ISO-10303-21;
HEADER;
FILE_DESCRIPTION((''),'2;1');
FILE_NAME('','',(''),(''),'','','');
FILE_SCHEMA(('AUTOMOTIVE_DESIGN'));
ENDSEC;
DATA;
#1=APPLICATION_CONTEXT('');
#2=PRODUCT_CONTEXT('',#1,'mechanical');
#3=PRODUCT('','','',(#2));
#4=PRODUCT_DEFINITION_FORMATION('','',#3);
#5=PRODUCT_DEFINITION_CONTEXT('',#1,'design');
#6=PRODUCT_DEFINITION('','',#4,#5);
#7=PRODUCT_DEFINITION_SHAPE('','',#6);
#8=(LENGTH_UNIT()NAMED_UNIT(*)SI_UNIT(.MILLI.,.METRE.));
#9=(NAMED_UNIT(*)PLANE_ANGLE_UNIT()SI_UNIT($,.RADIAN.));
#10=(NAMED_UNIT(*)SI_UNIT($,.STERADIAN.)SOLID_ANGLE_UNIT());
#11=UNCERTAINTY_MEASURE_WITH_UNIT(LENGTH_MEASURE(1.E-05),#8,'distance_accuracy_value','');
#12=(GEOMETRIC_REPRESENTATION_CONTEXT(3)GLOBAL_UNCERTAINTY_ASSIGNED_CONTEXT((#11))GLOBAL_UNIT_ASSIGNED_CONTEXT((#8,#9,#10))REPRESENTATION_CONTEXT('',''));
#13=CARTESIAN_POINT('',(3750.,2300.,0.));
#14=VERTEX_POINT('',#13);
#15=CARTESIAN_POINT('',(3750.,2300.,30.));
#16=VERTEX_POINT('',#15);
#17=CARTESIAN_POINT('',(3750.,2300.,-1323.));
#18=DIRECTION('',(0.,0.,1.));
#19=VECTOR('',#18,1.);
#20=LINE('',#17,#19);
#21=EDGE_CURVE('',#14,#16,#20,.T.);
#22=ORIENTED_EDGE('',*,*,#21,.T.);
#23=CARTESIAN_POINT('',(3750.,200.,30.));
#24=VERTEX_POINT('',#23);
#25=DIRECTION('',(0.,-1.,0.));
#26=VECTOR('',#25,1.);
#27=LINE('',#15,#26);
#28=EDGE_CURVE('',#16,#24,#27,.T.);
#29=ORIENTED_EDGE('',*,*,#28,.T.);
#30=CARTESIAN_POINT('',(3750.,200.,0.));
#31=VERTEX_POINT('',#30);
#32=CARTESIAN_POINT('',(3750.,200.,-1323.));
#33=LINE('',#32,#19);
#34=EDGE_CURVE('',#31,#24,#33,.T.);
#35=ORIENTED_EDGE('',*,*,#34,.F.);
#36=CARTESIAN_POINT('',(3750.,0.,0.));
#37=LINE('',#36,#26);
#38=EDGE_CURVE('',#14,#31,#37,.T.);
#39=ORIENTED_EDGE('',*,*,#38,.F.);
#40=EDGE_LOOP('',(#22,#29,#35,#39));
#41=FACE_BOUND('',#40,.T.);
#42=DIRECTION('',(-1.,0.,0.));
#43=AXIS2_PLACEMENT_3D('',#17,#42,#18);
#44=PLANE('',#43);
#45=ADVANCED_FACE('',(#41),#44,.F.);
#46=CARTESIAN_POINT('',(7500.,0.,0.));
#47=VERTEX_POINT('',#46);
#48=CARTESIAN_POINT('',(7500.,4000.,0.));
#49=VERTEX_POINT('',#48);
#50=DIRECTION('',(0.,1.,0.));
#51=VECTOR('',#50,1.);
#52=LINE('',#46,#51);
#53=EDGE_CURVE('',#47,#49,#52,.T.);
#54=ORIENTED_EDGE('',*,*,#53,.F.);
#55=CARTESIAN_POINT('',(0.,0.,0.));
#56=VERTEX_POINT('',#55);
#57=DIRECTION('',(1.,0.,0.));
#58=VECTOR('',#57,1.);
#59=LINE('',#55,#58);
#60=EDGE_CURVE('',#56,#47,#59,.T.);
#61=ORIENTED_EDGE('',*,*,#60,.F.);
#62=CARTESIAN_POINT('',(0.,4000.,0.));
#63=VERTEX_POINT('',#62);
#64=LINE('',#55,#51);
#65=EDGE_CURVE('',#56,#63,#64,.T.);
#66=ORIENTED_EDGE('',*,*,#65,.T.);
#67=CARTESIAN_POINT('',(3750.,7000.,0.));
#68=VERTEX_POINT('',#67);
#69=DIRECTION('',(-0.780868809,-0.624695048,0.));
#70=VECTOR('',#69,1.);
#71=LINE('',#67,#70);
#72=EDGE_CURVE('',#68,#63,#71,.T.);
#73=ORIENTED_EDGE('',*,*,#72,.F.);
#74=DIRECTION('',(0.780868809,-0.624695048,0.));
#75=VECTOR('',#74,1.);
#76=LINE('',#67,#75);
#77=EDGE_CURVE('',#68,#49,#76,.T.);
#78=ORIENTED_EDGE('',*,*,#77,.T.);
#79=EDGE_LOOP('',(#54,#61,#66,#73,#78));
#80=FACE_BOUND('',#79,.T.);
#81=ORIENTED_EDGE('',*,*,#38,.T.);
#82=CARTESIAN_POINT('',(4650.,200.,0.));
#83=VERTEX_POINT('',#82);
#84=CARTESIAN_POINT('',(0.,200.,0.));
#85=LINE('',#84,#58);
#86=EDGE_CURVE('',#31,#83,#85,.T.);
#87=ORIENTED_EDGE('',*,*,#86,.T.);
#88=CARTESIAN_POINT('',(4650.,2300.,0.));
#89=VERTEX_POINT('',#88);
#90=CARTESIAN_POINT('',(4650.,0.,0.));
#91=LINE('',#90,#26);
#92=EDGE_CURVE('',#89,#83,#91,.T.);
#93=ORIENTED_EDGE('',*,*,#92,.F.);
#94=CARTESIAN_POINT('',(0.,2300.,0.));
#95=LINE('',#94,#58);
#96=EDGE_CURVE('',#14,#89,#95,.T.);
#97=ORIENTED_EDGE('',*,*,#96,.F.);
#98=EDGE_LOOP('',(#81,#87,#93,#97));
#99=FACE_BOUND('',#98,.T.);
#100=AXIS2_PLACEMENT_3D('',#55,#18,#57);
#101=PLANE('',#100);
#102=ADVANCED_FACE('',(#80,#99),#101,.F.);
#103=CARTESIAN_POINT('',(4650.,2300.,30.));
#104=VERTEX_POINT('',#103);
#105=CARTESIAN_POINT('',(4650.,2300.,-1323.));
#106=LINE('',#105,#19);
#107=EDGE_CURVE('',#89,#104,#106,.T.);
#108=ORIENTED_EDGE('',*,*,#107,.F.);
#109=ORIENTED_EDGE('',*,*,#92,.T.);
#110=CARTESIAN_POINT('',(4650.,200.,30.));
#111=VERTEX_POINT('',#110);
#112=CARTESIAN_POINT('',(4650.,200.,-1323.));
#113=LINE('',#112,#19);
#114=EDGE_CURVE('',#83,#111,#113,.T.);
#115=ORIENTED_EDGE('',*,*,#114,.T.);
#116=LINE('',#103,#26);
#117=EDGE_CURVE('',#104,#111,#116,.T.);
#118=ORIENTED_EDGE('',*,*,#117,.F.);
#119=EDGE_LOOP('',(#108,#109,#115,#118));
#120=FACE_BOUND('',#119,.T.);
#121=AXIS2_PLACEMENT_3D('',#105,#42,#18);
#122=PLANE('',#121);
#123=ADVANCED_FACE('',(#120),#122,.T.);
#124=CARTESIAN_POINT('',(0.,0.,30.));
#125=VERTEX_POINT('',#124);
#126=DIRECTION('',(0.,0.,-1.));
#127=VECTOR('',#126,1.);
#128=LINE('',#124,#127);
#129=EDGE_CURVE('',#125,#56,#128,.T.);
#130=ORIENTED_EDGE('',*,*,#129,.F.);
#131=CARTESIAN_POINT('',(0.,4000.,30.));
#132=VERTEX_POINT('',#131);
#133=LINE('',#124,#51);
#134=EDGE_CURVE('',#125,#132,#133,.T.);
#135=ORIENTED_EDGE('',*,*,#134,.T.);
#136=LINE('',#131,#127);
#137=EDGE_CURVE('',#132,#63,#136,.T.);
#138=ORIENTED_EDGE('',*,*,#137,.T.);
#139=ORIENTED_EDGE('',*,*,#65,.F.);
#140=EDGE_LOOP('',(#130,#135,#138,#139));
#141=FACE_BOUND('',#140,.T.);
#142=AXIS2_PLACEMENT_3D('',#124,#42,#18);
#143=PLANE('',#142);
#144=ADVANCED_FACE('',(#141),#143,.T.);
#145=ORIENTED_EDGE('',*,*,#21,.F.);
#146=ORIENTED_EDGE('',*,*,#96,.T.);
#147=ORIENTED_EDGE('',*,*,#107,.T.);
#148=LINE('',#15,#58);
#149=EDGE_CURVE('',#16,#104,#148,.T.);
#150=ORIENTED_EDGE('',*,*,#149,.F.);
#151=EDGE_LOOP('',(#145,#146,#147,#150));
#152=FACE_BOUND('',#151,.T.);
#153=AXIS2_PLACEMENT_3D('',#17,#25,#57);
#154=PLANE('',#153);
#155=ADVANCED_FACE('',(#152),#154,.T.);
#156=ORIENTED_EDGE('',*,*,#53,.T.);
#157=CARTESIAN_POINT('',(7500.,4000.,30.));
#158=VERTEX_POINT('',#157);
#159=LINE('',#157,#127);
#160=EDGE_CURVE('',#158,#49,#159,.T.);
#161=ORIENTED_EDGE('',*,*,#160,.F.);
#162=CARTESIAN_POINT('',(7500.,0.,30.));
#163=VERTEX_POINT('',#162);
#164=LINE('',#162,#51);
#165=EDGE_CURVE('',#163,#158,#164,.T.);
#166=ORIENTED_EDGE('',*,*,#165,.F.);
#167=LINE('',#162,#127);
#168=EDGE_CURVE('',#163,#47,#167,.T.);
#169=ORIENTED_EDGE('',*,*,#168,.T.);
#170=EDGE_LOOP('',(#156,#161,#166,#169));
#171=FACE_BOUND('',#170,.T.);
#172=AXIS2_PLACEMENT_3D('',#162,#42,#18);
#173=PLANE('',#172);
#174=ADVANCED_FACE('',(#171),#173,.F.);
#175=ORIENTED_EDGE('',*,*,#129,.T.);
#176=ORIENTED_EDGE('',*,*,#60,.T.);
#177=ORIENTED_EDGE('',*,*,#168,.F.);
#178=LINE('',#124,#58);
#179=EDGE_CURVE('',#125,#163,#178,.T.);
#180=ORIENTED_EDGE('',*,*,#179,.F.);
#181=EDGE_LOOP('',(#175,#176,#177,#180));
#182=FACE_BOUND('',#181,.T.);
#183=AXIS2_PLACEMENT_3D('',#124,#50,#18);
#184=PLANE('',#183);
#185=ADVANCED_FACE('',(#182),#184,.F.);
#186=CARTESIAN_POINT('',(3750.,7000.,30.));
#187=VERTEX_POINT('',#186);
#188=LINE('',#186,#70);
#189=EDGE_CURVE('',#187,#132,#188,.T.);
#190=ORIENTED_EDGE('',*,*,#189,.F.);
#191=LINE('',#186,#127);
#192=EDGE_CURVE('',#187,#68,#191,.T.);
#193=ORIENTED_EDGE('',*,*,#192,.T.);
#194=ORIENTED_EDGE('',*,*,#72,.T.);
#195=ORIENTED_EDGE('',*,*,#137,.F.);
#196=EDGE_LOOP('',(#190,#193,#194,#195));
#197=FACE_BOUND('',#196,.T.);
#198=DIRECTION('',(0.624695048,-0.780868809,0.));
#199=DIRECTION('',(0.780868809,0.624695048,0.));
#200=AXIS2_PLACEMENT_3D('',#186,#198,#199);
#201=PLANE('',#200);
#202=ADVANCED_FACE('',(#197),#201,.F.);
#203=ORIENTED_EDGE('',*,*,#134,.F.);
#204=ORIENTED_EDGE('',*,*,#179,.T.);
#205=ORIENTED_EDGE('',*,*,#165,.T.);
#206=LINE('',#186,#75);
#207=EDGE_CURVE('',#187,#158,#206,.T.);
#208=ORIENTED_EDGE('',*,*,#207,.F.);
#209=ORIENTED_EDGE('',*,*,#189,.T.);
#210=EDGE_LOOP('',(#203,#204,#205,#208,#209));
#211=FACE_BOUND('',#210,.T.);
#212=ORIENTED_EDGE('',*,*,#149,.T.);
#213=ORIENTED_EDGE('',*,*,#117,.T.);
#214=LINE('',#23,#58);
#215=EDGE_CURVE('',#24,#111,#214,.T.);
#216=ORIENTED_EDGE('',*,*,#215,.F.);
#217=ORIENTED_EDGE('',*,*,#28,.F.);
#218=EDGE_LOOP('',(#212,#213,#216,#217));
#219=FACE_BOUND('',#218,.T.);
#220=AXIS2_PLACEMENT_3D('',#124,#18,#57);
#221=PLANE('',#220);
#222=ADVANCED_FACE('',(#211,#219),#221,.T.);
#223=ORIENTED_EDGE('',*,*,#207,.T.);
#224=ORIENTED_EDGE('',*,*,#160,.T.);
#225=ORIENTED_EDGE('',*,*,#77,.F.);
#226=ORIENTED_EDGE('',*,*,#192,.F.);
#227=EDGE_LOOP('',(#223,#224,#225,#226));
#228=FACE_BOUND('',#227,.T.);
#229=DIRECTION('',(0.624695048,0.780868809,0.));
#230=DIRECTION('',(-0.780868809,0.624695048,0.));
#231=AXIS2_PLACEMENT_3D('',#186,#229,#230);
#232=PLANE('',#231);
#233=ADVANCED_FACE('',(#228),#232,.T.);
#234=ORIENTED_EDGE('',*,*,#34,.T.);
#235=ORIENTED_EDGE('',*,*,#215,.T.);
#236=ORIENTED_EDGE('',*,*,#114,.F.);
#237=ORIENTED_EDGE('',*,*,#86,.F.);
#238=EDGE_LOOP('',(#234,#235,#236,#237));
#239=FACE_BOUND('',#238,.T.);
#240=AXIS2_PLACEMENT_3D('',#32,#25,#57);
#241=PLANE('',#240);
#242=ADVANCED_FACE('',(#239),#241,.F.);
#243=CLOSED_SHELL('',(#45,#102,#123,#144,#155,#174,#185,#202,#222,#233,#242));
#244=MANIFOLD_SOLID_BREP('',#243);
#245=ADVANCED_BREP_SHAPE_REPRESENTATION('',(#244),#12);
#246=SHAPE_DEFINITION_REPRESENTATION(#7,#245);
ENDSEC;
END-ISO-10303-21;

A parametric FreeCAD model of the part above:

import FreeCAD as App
import Part
import Sketcher

V = App.Vector
Q = App.Units.Quantity

doc = App.newDocument("Part")
body = doc.addObject("PartDesign::Body", "Body")

# Sketch on XY plane
sketch1 = body.newObject("Sketcher::SketchObject", "Sketch")
sketch1.AttachmentSupport = (doc.getObject("XY_Plane"), [""])
sketch1.MapMode = "FlatFace"
sketch1.addGeometry([
    Part.LineSegment(V(0, 0, 0), V(7500, 0, 0)),  # 0
    Part.LineSegment(V(7500, 0, 0), V(7500, 4000, 0)),  # 1
    Part.LineSegment(V(7500, 4000, 0), V(3750, 7000, 0)),  # 2
    Part.LineSegment(V(3750, 7000, 0), V(0, 4000, 0)),  # 3
    Part.LineSegment(V(0, 4000, 0), V(0, 0, 0)),  # 4
], False)
sketch1.addConstraint([
    Sketcher.Constraint("Coincident", 0, 2, 1, 1),
    Sketcher.Constraint("Coincident", 1, 2, 2, 1),
    Sketcher.Constraint("Coincident", 2, 2, 3, 1),
    Sketcher.Constraint("Coincident", 3, 2, 4, 1),
    Sketcher.Constraint("Coincident", 4, 2, 0, 1),
    Sketcher.Constraint("Horizontal", 0),
    Sketcher.Constraint("Vertical", 1),
    Sketcher.Constraint("Vertical", 4),
    Sketcher.Constraint("Coincident", 4, 2, -1, 1),
    Sketcher.Constraint("Horizontal", 1, 2, 3, 2),
    Sketcher.Constraint("Equal", 2, 3),
    Sketcher.Constraint("DistanceX", 0, 1, 0, 2, Q("7500 mm")),
    Sketcher.Constraint("DistanceY", 1, 1, 1, 2, Q("4000 mm")),
    Sketcher.Constraint("DistanceY", -1, 1, 2, 2, Q("7000 mm")),
])
pad1 = body.newObject("PartDesign::Pad", "Pad")
pad1.Profile = sketch1
pad1.Length = 30

# Sketch on XY plane
sketch2 = body.newObject("Sketcher::SketchObject", "Sketch001")
sketch2.AttachmentSupport = (doc.getObject("XY_Plane"), [""])
sketch2.MapMode = "FlatFace"
sketch2.AttachmentOffset = App.Placement(V(0, 0, 30), App.Rotation())
sketch2.addGeometry([
    Part.LineSegment(V(3750, 2300, 0), V(3750, 200, 0)),
    Part.LineSegment(V(3750, 200, 0), V(4650, 200, 0)),
    Part.LineSegment(V(4650, 200, 0), V(4650, 2300, 0)),
    Part.LineSegment(V(4650, 2300, 0), V(3750, 2300, 0)),
], False)
sketch2.addConstraint([
    Sketcher.Constraint("Coincident", 0, 2, 1, 1),
    Sketcher.Constraint("Coincident", 1, 2, 2, 1),
    Sketcher.Constraint("Coincident", 2, 2, 3, 1),
    Sketcher.Constraint("Coincident", 3, 2, 0, 1),
    Sketcher.Constraint("Vertical", 0),
    Sketcher.Constraint("Horizontal", 1),
    Sketcher.Constraint("Vertical", 2),
    Sketcher.Constraint("Horizontal", 3),
    Sketcher.Constraint("DistanceX", 1, 1, 1, 2, Q("900 mm")),
    Sketcher.Constraint("DistanceY", 0, 2, 0, 1, Q("2100 mm")),
    Sketcher.Constraint("DistanceX", -1, 1, 0, 2, Q("3750 mm")),
    Sketcher.Constraint("DistanceY", -1, 1, 0, 2, Q("200 mm")),
])
pocket1 = body.newObject("PartDesign::Pocket", "Pocket")
pocket1.Profile = sketch2
pocket1.Length = 1353

doc.recompute()
